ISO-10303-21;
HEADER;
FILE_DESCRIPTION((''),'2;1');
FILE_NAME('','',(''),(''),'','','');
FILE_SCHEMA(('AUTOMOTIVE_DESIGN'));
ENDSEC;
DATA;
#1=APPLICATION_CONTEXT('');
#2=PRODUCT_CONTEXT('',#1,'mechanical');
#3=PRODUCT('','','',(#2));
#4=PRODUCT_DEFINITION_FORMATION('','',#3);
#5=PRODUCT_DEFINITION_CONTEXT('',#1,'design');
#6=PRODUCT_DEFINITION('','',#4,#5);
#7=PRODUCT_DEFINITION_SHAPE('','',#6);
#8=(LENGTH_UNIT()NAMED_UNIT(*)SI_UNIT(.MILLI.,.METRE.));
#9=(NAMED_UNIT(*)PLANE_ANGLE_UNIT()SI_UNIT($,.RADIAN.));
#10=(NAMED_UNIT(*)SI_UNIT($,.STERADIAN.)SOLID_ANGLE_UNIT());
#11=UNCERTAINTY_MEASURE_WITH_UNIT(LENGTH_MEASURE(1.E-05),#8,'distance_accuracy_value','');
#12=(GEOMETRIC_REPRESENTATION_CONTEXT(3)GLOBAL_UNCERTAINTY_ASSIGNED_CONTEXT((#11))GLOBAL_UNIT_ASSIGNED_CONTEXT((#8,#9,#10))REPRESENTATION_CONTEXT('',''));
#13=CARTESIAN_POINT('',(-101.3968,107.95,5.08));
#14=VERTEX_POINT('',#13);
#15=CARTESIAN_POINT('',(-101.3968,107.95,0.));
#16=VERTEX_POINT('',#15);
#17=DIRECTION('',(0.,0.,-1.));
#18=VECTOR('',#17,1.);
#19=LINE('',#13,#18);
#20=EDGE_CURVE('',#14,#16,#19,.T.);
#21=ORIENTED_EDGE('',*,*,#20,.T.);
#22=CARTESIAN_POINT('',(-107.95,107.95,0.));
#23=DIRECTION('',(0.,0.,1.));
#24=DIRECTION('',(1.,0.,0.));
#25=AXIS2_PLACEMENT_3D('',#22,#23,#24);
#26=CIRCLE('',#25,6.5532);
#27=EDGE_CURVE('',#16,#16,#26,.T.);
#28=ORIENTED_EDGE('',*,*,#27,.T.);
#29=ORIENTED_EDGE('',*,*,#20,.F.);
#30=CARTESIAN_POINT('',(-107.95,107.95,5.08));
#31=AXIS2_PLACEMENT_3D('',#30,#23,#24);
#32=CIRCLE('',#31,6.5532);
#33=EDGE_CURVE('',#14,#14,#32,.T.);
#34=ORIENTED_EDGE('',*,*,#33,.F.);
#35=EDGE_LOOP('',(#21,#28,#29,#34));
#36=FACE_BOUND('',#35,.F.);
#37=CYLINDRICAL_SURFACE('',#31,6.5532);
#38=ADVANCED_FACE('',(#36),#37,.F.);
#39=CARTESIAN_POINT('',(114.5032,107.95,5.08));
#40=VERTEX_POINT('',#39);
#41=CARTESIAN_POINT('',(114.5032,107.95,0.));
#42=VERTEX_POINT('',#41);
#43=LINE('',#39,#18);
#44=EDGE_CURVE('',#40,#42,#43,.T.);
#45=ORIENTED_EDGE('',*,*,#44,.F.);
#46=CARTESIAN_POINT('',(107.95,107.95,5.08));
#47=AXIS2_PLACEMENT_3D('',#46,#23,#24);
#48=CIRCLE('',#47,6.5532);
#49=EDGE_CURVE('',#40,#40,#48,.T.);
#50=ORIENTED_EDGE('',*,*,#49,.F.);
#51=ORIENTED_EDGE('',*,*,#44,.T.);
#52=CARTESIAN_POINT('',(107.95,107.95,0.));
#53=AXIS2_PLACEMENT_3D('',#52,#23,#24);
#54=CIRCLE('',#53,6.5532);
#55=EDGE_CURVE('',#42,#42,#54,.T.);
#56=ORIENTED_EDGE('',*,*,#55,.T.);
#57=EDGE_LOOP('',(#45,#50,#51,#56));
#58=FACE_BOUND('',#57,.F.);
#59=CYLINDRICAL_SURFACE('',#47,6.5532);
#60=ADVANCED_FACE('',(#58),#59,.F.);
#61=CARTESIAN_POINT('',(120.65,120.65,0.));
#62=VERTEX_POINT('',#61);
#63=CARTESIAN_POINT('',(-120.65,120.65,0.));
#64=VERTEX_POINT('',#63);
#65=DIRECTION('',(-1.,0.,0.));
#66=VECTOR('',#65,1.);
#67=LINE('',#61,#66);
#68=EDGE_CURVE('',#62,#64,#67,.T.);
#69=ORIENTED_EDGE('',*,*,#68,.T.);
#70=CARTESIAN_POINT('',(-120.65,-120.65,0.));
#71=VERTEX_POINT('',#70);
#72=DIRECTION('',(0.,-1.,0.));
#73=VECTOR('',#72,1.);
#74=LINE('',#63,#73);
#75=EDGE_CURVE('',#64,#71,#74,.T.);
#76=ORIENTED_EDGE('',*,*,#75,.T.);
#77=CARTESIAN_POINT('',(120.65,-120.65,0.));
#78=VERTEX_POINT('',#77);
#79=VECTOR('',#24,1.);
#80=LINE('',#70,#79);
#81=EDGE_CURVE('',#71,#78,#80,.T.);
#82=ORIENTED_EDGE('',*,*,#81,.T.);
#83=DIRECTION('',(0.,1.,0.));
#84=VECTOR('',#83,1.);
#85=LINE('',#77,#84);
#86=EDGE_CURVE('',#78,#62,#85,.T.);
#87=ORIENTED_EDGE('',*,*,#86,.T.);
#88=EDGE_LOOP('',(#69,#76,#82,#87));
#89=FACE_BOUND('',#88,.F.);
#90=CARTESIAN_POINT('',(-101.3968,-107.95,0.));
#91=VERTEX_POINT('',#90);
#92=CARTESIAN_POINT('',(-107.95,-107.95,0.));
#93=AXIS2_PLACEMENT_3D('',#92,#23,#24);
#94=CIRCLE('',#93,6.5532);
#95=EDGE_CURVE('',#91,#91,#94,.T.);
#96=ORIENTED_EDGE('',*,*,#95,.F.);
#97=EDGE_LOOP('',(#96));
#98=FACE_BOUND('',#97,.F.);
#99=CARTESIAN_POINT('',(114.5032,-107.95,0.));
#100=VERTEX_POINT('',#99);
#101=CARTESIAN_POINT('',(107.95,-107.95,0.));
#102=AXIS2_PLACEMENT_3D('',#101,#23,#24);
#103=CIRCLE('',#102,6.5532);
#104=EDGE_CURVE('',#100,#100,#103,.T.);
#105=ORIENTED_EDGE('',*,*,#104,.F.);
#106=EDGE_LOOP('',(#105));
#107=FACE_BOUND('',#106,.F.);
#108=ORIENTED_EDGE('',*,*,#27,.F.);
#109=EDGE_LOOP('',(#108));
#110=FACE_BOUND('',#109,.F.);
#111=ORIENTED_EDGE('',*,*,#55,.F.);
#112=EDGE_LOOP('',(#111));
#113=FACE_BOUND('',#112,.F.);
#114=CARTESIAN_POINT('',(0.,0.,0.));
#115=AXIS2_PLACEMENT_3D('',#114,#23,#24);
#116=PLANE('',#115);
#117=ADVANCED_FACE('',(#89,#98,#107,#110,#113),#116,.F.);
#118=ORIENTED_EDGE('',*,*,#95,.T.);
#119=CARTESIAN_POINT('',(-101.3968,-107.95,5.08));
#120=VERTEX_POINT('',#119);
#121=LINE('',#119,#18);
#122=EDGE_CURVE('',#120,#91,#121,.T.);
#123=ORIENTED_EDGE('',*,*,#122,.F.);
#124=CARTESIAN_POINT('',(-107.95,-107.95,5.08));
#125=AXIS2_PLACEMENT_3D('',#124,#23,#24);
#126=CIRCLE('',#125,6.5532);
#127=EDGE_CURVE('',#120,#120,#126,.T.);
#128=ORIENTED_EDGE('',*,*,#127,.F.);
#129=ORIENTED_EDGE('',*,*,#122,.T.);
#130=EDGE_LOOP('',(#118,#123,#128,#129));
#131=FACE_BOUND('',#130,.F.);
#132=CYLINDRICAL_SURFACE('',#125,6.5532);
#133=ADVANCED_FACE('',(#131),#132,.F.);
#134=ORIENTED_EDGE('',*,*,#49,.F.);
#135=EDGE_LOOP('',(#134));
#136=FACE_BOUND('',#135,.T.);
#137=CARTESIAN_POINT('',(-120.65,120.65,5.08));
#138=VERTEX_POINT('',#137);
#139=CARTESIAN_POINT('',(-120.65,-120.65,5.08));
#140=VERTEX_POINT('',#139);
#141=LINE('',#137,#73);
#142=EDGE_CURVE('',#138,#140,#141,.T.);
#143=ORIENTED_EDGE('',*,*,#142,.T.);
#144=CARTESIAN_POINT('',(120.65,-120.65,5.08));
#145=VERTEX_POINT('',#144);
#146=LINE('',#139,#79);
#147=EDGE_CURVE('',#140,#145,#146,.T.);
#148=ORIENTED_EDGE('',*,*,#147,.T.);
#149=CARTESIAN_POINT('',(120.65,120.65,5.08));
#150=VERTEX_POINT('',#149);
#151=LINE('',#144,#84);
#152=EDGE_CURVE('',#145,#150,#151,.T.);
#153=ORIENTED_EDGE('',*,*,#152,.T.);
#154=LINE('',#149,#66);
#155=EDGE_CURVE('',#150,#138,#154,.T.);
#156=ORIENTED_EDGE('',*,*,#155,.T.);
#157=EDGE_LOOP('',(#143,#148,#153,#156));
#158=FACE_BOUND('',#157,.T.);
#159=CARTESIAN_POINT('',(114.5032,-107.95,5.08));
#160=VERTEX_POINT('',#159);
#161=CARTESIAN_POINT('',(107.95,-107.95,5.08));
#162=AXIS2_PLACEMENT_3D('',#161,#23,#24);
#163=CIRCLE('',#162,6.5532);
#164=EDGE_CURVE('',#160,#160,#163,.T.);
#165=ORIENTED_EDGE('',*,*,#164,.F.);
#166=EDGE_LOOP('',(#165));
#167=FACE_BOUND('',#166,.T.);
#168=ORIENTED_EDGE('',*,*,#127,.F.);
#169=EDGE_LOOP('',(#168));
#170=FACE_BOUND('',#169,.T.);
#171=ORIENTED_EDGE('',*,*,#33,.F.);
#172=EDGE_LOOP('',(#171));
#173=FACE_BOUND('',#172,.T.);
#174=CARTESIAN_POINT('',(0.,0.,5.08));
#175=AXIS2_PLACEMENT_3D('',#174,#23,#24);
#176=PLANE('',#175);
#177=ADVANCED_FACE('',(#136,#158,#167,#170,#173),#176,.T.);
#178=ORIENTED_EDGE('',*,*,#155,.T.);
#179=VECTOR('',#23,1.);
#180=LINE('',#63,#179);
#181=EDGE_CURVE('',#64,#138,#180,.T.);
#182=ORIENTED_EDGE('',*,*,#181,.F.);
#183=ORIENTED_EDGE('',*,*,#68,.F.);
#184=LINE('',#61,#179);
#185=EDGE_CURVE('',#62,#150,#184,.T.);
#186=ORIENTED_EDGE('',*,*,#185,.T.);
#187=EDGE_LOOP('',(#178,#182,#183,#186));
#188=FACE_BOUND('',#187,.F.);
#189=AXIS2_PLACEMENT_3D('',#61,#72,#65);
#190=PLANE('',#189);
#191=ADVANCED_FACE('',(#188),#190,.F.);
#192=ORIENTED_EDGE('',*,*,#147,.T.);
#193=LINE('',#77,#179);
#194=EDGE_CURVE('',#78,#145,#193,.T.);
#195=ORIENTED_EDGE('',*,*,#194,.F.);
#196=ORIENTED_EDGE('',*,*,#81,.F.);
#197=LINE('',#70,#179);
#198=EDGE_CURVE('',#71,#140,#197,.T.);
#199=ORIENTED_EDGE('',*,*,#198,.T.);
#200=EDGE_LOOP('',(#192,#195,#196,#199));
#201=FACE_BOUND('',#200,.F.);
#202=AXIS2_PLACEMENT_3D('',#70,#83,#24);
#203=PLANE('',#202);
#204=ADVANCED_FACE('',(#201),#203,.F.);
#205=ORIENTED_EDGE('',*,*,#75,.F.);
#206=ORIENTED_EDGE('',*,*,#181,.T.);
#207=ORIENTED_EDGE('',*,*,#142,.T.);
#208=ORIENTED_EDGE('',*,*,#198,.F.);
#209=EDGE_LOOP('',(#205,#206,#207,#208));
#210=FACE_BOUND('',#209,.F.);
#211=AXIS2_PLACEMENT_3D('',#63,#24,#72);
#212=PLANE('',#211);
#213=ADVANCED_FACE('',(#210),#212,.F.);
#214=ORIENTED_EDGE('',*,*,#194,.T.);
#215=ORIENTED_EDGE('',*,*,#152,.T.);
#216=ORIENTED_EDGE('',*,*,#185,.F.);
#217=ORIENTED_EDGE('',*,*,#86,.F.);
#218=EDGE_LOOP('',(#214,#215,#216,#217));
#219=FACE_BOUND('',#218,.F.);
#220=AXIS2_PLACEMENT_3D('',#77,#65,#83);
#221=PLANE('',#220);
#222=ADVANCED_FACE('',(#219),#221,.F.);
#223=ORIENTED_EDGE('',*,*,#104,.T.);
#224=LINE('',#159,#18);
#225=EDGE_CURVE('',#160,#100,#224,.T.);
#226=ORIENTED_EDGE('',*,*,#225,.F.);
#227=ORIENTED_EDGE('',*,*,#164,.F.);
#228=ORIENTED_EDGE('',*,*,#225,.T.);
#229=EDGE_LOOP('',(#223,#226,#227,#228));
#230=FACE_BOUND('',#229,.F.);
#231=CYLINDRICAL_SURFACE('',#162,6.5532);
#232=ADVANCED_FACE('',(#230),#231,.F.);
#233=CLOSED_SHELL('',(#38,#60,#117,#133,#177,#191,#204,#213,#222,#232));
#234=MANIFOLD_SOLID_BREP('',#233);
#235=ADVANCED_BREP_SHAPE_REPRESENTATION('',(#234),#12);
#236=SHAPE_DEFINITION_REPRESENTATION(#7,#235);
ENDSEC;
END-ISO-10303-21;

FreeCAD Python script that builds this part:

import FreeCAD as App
import Part
import Sketcher
from FreeCAD import Vector
Q = App.Units.Quantity


def add_polygon(sketch, points):
    """Adds a closed chain of lines whose ends are joined by coincident constraints."""
    first, n = sketch.GeometryCount, len(points)
    for a, b in zip(points, points[1:] + points[:1]):
        sketch.addGeometry(Part.LineSegment(App.Vector(*a, 0), App.Vector(*b, 0)), False)
    for i in range(n):
        sketch.addConstraint(Sketcher.Constraint("Coincident", first + i, 2, first + (i + 1) % n, 1))

doc = App.newDocument("Part")
body = doc.addObject("PartDesign::Body", "Body")

# Sketch on XY plane
sketch1 = doc.addObject("Sketcher::SketchObject", "Sketch")
body.addObject(sketch1)
sketch1.AttachmentSupport = (doc.XY_Plane, [""])
sketch1.MapMode = "FlatFace"
add_polygon(sketch1, [(-120.65, 120.65), (-120.65, -120.65), (120.65, -120.65), (120.65, 120.65)])  # lines 0-3
sketch1.addConstraint(Sketcher.Constraint("Vertical", 0))
sketch1.addConstraint(Sketcher.Constraint("Horizontal", 1))
sketch1.addConstraint(Sketcher.Constraint("Vertical", 2))
sketch1.addConstraint(Sketcher.Constraint("Horizontal", 3))
sketch1.addConstraint(Sketcher.Constraint("Symmetric", 0, 2, 2, 2, -1, 1))
sketch1.addConstraint(Sketcher.Constraint("Equal", 3, 0))
sketch1.addConstraint(Sketcher.Constraint("DistanceX", 1, 1, 1, 2, Q("9.5 in")))
pad1 = doc.addObject("PartDesign::Pad", "Pad")
body.addObject(pad1)
pad1.Profile = sketch1
pad1.Length = Q("0.2 in")

# Sketch on XY plane
sketch2 = doc.addObject("Sketcher::SketchObject", "Sketch001")
body.addObject(sketch2)
sketch2.AttachmentSupport = (doc.XY_Plane, [""])
sketch2.MapMode = "FlatFace"
sketch2.AttachmentOffset = App.Placement(Vector(0, 0, 0.2 * 25.4), App.Rotation())
sketch2.addGeometry(Part.Circle(Vector(107.95, 107.95, 0), Vector(0, 0, 1), 6.5532), False)
sketch2.addGeometry(Part.Circle(Vector(-107.95, 107.95, 0), Vector(0, 0, 1), 6.5532), False)
sketch2.addGeometry(Part.Circle(Vector(107.95, -107.95, 0), Vector(0, 0, 1), 6.5532), False)
sketch2.addGeometry(Part.Circle(Vector(-107.95, -107.95, 0), Vector(0, 0, 1), 6.5532), False)
sketch2.addConstraint(Sketcher.Constraint("Equal", 0, 1))
sketch2.addConstraint(Sketcher.Constraint("Equal", 1, 2))
sketch2.addConstraint(Sketcher.Constraint("Equal", 2, 3))
sketch2.addConstraint(Sketcher.Constraint("Symmetric", 1, 3, 2, 3, -1, 1))
sketch2.addConstraint(Sketcher.Constraint("Symmetric", 0, 3, 3, 3, -1, 1))
sketch2.addConstraint(Sketcher.Constraint("Symmetric", 0, 3, 1, 3, -2))
sketch2.addConstraint(Sketcher.Constraint("Diameter", 0, Q("0.516 in")))
sketch2.addConstraint(Sketcher.Constraint("DistanceX", 1, 3, 0, 3, Q("8.5 in")))
sketch2.addConstraint(Sketcher.Constraint("DistanceY", 2, 3, 0, 3, Q("8.5 in")))
pocket1 = doc.addObject("PartDesign::Pocket", "Pocket")
body.addObject(pocket1)
pocket1.Profile = sketch2
pocket1.Length = Q("0.3 in")

doc.recompute()
